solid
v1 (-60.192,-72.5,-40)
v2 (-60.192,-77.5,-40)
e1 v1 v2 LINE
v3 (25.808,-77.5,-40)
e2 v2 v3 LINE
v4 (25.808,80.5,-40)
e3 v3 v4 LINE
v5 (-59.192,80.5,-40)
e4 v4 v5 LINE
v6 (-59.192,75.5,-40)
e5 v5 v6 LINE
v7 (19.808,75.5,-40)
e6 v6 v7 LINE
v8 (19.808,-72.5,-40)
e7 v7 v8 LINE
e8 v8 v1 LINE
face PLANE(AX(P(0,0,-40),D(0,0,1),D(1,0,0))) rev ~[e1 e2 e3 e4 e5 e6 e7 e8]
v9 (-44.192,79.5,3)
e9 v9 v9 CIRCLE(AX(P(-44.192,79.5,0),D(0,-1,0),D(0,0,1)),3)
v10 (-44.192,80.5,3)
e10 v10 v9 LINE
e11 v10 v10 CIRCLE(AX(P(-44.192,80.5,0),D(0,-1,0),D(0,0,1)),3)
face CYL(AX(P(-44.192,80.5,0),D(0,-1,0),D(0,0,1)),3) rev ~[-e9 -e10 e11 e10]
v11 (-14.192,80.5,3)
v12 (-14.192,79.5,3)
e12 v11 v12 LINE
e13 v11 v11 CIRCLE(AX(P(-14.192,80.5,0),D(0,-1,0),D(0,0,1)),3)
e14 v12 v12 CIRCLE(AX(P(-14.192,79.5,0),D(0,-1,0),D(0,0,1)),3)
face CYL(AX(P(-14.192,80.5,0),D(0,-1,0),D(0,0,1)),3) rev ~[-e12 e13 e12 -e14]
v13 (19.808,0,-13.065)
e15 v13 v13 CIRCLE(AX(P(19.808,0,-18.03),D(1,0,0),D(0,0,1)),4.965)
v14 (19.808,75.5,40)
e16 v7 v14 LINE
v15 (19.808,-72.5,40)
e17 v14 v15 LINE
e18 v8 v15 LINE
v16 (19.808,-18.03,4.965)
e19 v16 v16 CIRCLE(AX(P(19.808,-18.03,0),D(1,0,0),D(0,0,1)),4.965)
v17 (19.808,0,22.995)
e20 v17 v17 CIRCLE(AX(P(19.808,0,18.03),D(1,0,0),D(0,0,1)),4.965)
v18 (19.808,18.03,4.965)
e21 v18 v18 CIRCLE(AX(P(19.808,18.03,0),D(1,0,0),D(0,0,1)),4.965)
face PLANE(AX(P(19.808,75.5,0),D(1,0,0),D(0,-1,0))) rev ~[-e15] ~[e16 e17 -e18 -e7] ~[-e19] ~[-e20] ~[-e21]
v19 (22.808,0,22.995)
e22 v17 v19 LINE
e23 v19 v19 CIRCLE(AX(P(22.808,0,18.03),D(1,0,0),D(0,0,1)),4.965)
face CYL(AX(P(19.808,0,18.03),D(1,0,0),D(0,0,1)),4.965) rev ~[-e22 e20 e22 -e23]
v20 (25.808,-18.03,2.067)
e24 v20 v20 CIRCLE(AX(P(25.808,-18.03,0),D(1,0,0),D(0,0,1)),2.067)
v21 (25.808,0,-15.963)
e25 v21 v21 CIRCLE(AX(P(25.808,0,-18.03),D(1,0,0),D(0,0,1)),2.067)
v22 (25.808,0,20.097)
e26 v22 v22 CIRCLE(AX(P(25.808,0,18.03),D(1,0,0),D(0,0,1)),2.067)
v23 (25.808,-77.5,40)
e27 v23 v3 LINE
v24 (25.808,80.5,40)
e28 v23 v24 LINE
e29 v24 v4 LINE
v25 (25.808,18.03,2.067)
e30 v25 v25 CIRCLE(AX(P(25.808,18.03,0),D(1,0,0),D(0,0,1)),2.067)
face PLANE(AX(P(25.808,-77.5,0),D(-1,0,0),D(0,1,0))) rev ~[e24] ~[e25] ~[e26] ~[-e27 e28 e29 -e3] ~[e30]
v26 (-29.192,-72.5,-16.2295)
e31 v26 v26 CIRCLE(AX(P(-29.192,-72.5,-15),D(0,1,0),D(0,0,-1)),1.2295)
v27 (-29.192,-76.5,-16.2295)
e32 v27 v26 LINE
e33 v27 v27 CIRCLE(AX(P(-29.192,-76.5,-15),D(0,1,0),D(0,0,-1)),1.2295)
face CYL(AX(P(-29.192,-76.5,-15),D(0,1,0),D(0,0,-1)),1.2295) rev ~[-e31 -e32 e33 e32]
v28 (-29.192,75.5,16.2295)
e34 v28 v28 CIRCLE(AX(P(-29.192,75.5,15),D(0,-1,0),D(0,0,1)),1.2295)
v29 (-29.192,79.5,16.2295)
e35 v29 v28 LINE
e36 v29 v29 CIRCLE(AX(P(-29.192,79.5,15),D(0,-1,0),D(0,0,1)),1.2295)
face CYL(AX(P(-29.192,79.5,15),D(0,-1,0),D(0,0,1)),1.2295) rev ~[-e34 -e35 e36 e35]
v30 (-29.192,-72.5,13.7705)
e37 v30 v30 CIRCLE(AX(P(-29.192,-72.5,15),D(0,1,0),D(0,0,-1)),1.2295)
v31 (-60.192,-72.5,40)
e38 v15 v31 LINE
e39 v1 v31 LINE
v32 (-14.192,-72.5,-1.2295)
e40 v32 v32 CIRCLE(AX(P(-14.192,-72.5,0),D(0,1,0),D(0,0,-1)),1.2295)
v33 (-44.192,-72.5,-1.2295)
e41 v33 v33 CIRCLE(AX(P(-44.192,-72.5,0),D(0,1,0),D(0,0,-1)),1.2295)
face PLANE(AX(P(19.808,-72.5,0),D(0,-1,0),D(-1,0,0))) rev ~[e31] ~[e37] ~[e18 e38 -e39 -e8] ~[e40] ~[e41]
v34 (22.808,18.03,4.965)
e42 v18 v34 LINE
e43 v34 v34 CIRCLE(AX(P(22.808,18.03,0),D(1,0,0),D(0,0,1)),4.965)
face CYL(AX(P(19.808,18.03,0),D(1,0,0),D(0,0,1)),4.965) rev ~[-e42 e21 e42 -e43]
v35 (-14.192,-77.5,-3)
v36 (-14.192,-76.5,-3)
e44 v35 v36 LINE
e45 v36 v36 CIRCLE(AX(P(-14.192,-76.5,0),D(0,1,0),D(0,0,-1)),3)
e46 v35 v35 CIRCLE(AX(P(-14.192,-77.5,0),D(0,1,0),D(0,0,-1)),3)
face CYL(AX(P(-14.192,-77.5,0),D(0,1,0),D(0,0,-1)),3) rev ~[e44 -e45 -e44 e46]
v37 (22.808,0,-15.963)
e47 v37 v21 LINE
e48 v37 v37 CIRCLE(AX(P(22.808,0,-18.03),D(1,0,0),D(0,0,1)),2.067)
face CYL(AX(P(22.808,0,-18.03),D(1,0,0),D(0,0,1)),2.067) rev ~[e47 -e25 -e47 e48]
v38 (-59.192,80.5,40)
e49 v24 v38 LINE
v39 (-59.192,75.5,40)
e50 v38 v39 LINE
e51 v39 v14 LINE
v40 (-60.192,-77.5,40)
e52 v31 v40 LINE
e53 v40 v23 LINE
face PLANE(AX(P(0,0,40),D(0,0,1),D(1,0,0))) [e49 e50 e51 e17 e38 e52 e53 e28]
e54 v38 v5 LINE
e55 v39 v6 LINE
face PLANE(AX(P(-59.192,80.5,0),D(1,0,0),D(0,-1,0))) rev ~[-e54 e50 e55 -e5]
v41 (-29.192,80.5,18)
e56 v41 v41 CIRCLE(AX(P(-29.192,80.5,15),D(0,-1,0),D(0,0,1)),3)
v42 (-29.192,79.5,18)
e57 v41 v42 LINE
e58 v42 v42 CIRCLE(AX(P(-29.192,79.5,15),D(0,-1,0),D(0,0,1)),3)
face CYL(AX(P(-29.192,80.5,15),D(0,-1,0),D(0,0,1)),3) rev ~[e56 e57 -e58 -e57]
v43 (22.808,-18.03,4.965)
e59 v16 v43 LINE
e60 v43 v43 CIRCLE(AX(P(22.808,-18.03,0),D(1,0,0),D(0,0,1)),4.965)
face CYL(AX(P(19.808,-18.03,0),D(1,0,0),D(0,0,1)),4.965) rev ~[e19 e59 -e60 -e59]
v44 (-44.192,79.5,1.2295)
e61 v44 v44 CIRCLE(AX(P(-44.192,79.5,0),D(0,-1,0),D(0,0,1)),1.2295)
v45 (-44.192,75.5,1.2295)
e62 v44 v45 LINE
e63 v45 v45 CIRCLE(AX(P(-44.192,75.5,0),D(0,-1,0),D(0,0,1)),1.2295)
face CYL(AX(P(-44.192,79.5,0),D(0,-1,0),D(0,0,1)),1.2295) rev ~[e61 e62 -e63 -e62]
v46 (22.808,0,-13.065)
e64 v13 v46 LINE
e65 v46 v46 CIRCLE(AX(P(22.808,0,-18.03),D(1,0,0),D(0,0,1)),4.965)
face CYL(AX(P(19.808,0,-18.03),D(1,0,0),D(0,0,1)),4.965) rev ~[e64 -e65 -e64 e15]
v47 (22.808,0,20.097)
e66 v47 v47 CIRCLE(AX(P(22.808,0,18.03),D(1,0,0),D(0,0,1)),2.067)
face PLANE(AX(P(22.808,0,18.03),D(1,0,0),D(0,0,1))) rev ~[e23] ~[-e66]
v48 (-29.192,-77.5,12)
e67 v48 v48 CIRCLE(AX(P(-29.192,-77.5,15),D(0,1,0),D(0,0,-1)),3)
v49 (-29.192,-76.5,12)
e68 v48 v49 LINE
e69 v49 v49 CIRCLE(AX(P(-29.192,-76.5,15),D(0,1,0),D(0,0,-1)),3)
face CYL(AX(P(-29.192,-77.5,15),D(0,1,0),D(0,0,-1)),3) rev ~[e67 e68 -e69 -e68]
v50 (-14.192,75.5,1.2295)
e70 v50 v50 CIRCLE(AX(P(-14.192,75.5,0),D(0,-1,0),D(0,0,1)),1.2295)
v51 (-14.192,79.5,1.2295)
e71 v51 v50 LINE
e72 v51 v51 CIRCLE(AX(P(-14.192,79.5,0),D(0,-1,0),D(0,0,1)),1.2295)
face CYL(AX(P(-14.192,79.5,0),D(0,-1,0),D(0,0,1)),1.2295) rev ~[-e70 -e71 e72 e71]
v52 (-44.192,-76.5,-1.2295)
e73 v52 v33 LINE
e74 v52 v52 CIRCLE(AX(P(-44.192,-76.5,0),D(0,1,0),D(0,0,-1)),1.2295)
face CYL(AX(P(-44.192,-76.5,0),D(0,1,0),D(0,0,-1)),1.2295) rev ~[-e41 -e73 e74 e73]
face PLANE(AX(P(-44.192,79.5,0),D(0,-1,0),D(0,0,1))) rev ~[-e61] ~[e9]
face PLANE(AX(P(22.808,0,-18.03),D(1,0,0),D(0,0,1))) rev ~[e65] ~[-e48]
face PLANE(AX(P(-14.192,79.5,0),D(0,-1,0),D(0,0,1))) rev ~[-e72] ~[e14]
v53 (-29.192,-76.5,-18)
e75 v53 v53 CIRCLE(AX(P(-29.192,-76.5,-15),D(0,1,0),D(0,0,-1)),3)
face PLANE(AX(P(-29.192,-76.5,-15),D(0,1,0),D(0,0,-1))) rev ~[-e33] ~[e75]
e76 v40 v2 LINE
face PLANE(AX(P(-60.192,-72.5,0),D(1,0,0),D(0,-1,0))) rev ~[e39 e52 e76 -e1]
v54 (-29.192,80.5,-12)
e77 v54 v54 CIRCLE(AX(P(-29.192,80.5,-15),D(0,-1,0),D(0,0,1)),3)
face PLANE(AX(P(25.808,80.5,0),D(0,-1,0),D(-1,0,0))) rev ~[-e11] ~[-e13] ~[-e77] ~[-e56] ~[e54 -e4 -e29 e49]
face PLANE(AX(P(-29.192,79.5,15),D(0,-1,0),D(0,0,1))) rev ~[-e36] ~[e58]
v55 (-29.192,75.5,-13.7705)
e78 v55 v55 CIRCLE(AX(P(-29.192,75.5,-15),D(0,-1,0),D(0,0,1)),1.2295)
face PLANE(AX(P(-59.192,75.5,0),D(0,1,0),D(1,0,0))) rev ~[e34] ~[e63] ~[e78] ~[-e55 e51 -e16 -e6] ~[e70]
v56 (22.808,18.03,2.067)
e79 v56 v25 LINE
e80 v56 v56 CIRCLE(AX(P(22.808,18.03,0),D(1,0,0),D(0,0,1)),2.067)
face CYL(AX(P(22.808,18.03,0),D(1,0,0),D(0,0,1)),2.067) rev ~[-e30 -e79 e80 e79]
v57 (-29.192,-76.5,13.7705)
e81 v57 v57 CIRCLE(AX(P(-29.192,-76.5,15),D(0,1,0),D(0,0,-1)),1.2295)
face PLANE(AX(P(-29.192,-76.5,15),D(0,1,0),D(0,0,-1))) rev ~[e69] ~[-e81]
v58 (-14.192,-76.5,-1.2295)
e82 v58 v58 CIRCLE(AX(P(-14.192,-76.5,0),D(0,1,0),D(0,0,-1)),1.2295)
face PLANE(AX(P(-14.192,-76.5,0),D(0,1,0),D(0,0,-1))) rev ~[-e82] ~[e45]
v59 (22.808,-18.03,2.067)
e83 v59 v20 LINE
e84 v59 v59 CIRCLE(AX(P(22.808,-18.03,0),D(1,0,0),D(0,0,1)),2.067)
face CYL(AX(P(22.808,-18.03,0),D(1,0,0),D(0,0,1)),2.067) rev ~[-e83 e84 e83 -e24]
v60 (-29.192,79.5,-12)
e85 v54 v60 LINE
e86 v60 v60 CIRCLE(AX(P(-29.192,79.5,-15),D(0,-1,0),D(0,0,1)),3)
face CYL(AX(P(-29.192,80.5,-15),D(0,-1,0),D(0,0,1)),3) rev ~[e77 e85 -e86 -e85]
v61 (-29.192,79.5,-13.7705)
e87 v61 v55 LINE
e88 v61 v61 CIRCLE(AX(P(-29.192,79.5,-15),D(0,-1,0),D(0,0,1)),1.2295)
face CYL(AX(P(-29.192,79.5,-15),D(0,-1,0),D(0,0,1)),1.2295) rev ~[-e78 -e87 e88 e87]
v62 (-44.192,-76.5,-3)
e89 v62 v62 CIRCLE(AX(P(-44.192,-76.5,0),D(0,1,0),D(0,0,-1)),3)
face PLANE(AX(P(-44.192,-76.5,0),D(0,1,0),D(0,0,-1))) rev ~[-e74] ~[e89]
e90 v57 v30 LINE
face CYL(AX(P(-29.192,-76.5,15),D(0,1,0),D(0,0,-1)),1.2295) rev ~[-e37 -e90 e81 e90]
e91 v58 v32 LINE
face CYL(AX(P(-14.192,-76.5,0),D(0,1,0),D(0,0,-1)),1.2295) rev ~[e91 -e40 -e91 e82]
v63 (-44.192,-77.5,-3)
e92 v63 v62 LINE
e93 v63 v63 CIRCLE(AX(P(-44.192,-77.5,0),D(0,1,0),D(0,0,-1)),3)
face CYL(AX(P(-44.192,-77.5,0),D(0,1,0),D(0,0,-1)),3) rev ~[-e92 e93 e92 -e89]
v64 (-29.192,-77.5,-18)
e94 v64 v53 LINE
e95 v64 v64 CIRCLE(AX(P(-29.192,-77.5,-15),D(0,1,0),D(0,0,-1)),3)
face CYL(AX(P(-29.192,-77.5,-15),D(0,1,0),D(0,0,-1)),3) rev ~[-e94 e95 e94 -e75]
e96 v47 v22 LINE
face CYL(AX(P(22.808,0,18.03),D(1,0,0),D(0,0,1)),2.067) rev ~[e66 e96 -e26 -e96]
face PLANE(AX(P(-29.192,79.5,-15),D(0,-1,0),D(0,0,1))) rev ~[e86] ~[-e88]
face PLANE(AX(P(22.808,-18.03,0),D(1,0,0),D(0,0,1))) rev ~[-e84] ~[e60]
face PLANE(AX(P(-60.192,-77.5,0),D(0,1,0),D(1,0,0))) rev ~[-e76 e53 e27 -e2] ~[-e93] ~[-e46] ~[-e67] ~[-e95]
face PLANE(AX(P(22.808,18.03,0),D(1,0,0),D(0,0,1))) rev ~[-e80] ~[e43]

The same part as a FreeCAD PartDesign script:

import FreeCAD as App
import Part
import Sketcher

V = App.Vector
Q = App.Units.Quantity

doc = App.newDocument("Part")
body = doc.addObject("PartDesign::Body", "Body")

# Sketch on XY plane
sketch1 = body.newObject("Sketcher::SketchObject", "Sketch")
sketch1.AttachmentSupport = (doc.getObject("XY_Plane"), [""])
sketch1.MapMode = "FlatFace"
sketch1.addGeometry([
    Part.LineSegment(V(-59, 76, 0), V(20, 76, 0)),  # 0
    Part.LineSegment(V(20, 76, 0), V(20, -72, 0)),  # 1
    Part.LineSegment(V(20, -72, 0), V(-60, -72, 0)),  # 2
    Part.LineSegment(V(-60, -72, 0), V(-60, -78, 0)),  # 3
    Part.LineSegment(V(-60, -78, 0), V(26, -78, 0)),  # 4
    Part.LineSegment(V(26, -78, 0), V(26, 80, 0)),  # 5
    Part.LineSegment(V(26, 80, 0), V(-59, 80, 0)),  # 6
    Part.LineSegment(V(-59, 80, 0), V(-59, 76, 0)),  # 7
], False)
sketch1.addConstraint([
    Sketcher.Constraint("Coincident", 0, 2, 1, 1),
    Sketcher.Constraint("Coincident", 1, 2, 2, 1),
    Sketcher.Constraint("Coincident", 2, 2, 3, 1),
    Sketcher.Constraint("Coincident", 3, 2, 4, 1),
    Sketcher.Constraint("Coincident", 4, 2, 5, 1),
    Sketcher.Constraint("Coincident", 5, 2, 6, 1),
    Sketcher.Constraint("Coincident", 6, 2, 7, 1),
    Sketcher.Constraint("Coincident", 7, 2, 0, 1),
    Sketcher.Constraint("Horizontal", 0),
    Sketcher.Constraint("Vertical", 1),
    Sketcher.Constraint("Horizontal", 2),
    Sketcher.Constraint("Vertical", 3),
    Sketcher.Constraint("Horizontal", 4),
    Sketcher.Constraint("Vertical", 5),
    Sketcher.Constraint("Horizontal", 6),
    Sketcher.Constraint("Vertical", 7),
    Sketcher.Constraint("Equal", 3, 7),
    Sketcher.Constraint("DistanceX", 2, 2, 2, 1, Q("80 mm")),
    Sketcher.Constraint("DistanceX", 4, 1, 4, 2, Q("86 mm")),
    Sketcher.Constraint("DistanceX", 6, 2, 6, 1, Q("85 mm")),
    Sketcher.Constraint("DistanceY", 1, 2, 1, 1, Q("148 mm")),
    Sketcher.Constraint("DistanceY", 3, 2, 3, 1, Q("5 mm")),
    Sketcher.Constraint("DistanceY", 1, 2, -1, 1, Q("72.5 mm")),
    Sketcher.Constraint("DistanceX", -1, 1, 0, 2, Q("19.808 mm")),
])
pad1 = body.newObject("PartDesign::Pad", "Pad")
pad1.Profile = sketch1
pad1.Length = 80
pad1.Midplane = True

# Sketch on XZ plane
sketch2 = body.newObject("Sketcher::SketchObject", "Sketch001")
sketch2.AttachmentSupport = (doc.getObject("XZ_Plane"), [""])
sketch2.MapMode = "FlatFace"
sketch2.AttachmentOffset = App.Placement(V(0, 0, -80.5), App.Rotation())
sketch2.addGeometry([
    Part.Circle(V(-14.2, 0, 0), V(0, 0, 1), 1.2),
    Part.Circle(V(-29.2, 15, 0), V(0, 0, 1), 1.2),
    Part.Circle(V(-44.2, 0, 0), V(0, 0, 1), 1.2),
    Part.Circle(V(-29.2, -15, 0), V(0, 0, 1), 1.2),
], False)
sketch2.addConstraint([
    Sketcher.Constraint("Equal", 0, 1),
    Sketcher.Constraint("Equal", 1, 2),
    Sketcher.Constraint("Equal", 2, 3),
    Sketcher.Constraint("Symmetric", 1, 3, 3, 3, -1),
    Sketcher.Constraint("PointOnObject", 0, 3, -1),
    Sketcher.Constraint("PointOnObject", 2, 3, -1),
    Sketcher.Constraint("Diameter", 0, Q("2.459 mm")),
    Sketcher.Constraint("DistanceY", -1, 1, 1, 3, Q("15 mm")),
    Sketcher.Constraint("DistanceX", 1, 3, 0, 3, Q("15 mm")),
    Sketcher.Constraint("DistanceX", 2, 3, 1, 3, Q("15 mm")),
    Sketcher.Constraint("DistanceX", 0, 3, -1, 1, Q("14.192 mm")),
])
doc.recompute()
hole = body.newObject("PartDesign::Hole", "Hole")
hole.Profile = sketch2
hole.ThreadType = "None"
hole.Diameter = 2.459
hole.DepthType = "Dimension"
hole.Depth = 5
hole.DrillPoint = "Flat"
hole.HoleCutType = "Counterbore"
hole.HoleCutDiameter = 6
hole.HoleCutDepth = 1
hole.Reversed = True

# Sketch on XZ plane
sketch3 = body.newObject("Sketcher::SketchObject", "Sketch002")
sketch3.AttachmentSupport = (doc.getObject("XZ_Plane"), [""])
sketch3.MapMode = "FlatFace"
sketch3.AttachmentOffset = App.Placement(V(0, 0, 77.5), App.Rotation())
sketch3.addGeometry([
    Part.Circle(V(-29.2, 15, 0), V(0, 0, 1), 1.2),
    Part.Circle(V(-29.2, -15, 0), V(0, 0, 1), 1.2),
    Part.Circle(V(-44.2, 0, 0), V(0, 0, 1), 1.2),
    Part.Circle(V(-14.2, 0, 0), V(0, 0, 1), 1.2),
], False)
sketch3.addConstraint([
    Sketcher.Constraint("Equal", 0, 1),
    Sketcher.Constraint("Equal", 1, 2),
    Sketcher.Constraint("Equal", 2, 3),
    Sketcher.Constraint("Symmetric", 0, 3, 1, 3, -1),
    Sketcher.Constraint("PointOnObject", 2, 3, -1),
    Sketcher.Constraint("PointOnObject", 3, 3, -1),
    Sketcher.Constraint("Diameter", 0, Q("2.459 mm")),
    Sketcher.Constraint("DistanceY", -1, 1, 0, 3, Q("15 mm")),
    Sketcher.Constraint("DistanceX", 2, 3, 0, 3, Q("15 mm")),
    Sketcher.Constraint("DistanceX", 0, 3, 3, 3, Q("15 mm")),
    Sketcher.Constraint("DistanceX", 0, 3, -1, 1, Q("29.192 mm")),
])
doc.recompute()
hole2 = body.newObject("PartDesign::Hole", "Hole001")
hole2.Profile = sketch3
hole2.ThreadType = "None"
hole2.Diameter = 2.459
hole2.DepthType = "Dimension"
hole2.Depth = 5
hole2.DrillPoint = "Flat"
hole2.HoleCutType = "Counterbore"
hole2.HoleCutDiameter = 6
hole2.HoleCutDepth = 1

# Sketch on YZ plane
sketch4 = body.newObject("Sketcher::SketchObject", "Sketch003")
sketch4.AttachmentSupport = (doc.getObject("YZ_Plane"), [""])
sketch4.MapMode = "FlatFace"
sketch4.AttachmentOffset = App.Placement(V(0, 0, 19.808), App.Rotation())
sketch4.addGeometry([
    Part.Circle(V(0, -18, 0), V(0, 0, 1), 2.1),
    Part.Circle(V(-18, 0, 0), V(0, 0, 1), 2.1),
    Part.Circle(V(0, 18, 0), V(0, 0, 1), 2.1),
    Part.Circle(V(18, 0, 0), V(0, 0, 1), 2.1),
], False)
sketch4.addConstraint([
    Sketcher.Constraint("Equal", 0, 1),
    Sketcher.Constraint("Equal", 1, 2),
    Sketcher.Constraint("Equal", 2, 3),
    Sketcher.Constraint("Symmetric", 0, 3, 2, 3, -1, 1),
    Sketcher.Constraint("Symmetric", 1, 3, 3, 3, -1, 1),
    Sketcher.Constraint("PointOnObject", 0, 3, -2),
    Sketcher.Constraint("PointOnObject", 1, 3, -1),
    Sketcher.Constraint("Diameter", 0, Q("4.134 mm")),
    Sketcher.Constraint("DistanceY", 0, 3, -1, 1, Q("18.03 mm")),
    Sketcher.Constraint("DistanceX", 1, 3, -1, 1, Q("18.03 mm")),
])
doc.recompute()
hole3 = body.newObject("PartDesign::Hole", "Hole002")
hole3.Profile = sketch4
hole3.ThreadType = "None"
hole3.Diameter = 4.134
hole3.DepthType = "ThroughAll"
hole3.HoleCutType = "Counterbore"
hole3.HoleCutDiameter = 9.93
hole3.HoleCutDepth = 3
hole3.Reversed = True

doc.recompute()
